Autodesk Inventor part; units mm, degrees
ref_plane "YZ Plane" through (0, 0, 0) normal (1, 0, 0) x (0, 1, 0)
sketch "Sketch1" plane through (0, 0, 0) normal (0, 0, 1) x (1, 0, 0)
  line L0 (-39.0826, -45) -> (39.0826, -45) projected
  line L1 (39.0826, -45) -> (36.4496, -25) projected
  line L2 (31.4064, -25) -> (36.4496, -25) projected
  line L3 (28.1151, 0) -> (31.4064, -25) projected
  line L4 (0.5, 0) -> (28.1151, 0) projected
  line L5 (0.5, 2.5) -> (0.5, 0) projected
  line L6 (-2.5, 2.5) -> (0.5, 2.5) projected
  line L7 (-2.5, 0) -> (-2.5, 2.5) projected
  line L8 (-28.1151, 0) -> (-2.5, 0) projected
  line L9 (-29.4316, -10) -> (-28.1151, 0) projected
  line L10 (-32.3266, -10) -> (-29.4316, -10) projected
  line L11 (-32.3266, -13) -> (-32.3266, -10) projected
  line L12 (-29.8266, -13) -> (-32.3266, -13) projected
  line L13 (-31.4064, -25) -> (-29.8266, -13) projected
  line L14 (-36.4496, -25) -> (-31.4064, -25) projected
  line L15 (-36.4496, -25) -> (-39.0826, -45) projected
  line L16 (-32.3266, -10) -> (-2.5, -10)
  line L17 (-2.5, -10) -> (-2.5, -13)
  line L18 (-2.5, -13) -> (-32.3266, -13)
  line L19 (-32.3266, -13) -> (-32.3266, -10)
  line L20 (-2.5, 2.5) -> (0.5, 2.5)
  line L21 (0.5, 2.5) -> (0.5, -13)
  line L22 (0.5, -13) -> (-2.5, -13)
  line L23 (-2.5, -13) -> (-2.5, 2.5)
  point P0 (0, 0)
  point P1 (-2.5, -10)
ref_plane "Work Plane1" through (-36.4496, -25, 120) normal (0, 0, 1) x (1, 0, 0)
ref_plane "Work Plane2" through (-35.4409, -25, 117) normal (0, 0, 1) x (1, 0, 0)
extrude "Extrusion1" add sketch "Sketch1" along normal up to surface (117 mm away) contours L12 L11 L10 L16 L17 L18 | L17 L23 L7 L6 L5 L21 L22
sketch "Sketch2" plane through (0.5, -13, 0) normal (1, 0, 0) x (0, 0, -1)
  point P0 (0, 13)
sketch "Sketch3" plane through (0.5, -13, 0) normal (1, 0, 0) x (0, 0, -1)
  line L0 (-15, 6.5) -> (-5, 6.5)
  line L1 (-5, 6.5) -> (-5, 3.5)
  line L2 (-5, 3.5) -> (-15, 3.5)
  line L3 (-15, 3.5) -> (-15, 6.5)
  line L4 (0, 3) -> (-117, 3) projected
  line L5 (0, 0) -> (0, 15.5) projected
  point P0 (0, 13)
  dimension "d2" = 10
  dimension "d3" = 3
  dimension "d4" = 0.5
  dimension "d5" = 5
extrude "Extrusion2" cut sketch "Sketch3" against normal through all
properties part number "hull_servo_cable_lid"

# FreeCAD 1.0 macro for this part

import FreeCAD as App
import Part
import Sketcher

V = App.Vector

doc = App.newDocument("Part")
params = doc.addObject("Spreadsheet::Sheet", "Params")
for row, (alias, value) in enumerate([
    ("sketch1_width", "3 mm"),
    ("sketch1_height", "15.5 mm"),
    ("pad1_length", "117 mm"),
    ("sketch2_width", "3 mm"),
    ("sketch2_height", "10 mm"),
], start=1):
    params.set(f"A{row}", alias)
    params.set(f"B{row}", "=" + value)
    params.setAlias(f"B{row}", alias)

body = doc.addObject("PartDesign::Body", "Body")

# Sketch on XY plane
sketch1 = doc.addObject("Sketcher::SketchObject", "Sketch")
body.addObject(sketch1)
sketch1.AttachmentSupport = (doc.XY_Plane, [""])
sketch1.MapMode = "FlatFace"
sketch1.addGeometry(Part.LineSegment(V(-32.3, -13, 0), V(0.5, -13, 0)), False)
sketch1.addGeometry(Part.LineSegment(V(0.5, -13, 0), V(0.5, 2.5, 0)), False)
sketch1.addGeometry(Part.LineSegment(V(0.5, 2.5, 0), V(-2.5, 2.5, 0)), False)
sketch1.addGeometry(Part.LineSegment(V(-2.5, 2.5, 0), V(-2.5, -10, 0)), False)
sketch1.addGeometry(Part.LineSegment(V(-2.5, -10, 0), V(-32.3, -10, 0)), False)
sketch1.addGeometry(Part.LineSegment(V(-32.3, -10, 0), V(-32.3, -13, 0)), False)
sketch1.addConstraint(Sketcher.Constraint("Coincident", 0, 2, 1, 1))
sketch1.addConstraint(Sketcher.Constraint("Coincident", 1, 2, 2, 1))
sketch1.addConstraint(Sketcher.Constraint("Coincident", 2, 2, 3, 1))
sketch1.addConstraint(Sketcher.Constraint("Coincident", 3, 2, 4, 1))
sketch1.addConstraint(Sketcher.Constraint("Coincident", 4, 2, 5, 1))
sketch1.addConstraint(Sketcher.Constraint("Coincident", 5, 2, 0, 1))
sketch1.addConstraint(Sketcher.Constraint("Horizontal", 0))
sketch1.addConstraint(Sketcher.Constraint("Vertical", 1))
sketch1.addConstraint(Sketcher.Constraint("Horizontal", 2))
sketch1.addConstraint(Sketcher.Constraint("Vertical", 3))
sketch1.addConstraint(Sketcher.Constraint("Horizontal", 4))
sketch1.addConstraint(Sketcher.Constraint("Vertical", 5))
sketch1.addConstraint(Sketcher.Constraint("Equal", 2, 5))
sketch1.addConstraint(Sketcher.Constraint("DistanceX", 2, 2, 2, 1, 3.0))
sketch1.addConstraint(Sketcher.Constraint("DistanceY", 1, 1, 1, 2, 15.5))
sketch1.addConstraint(Sketcher.Constraint("DistanceY", 0, 2, -1, 1, 13.0))
sketch1.addConstraint(Sketcher.Constraint("DistanceX", -1, 1, 0, 2, 0.5))
sketch1.addConstraint(Sketcher.Constraint("DistanceX", 0, 1, 0, 2, 32.8266))
sketch1.setExpression("Constraints[13]", "Params.sketch1_width")
sketch1.setExpression("Constraints[14]", "Params.sketch1_height")
pad1 = doc.addObject("PartDesign::Pad", "Pad")
body.addObject(pad1)
pad1.Profile = sketch1
pad1.setExpression("Length", "Params.pad1_length")

# Sketch on YZ plane
sketch2 = doc.addObject("Sketcher::SketchObject", "Sketch001")
body.addObject(sketch2)
sketch2.AttachmentSupport = (doc.YZ_Plane, [""])
sketch2.MapMode = "FlatFace"
sketch2.AttachmentOffset = App.Placement(V(0, 0, 0.5), App.Rotation())
sketch2.addGeometry(Part.LineSegment(V(-6.5, 5, 0), V(-6.5, 15, 0)), False)
sketch2.addGeometry(Part.LineSegment(V(-6.5, 15, 0), V(-9.5, 15, 0)), False)
sketch2.addGeometry(Part.LineSegment(V(-9.5, 15, 0), V(-9.5, 5, 0)), False)
sketch2.addGeometry(Part.LineSegment(V(-9.5, 5, 0), V(-6.5, 5, 0)), False)
sketch2.addConstraint(Sketcher.Constraint("Coincident", 0, 2, 1, 1))
sketch2.addConstraint(Sketcher.Constraint("Coincident", 1, 2, 2, 1))
sketch2.addConstraint(Sketcher.Constraint("Coincident", 2, 2, 3, 1))
sketch2.addConstraint(Sketcher.Constraint("Coincident", 3, 2, 0, 1))
sketch2.addConstraint(Sketcher.Constraint("Vertical", 0))
sketch2.addConstraint(Sketcher.Constraint("Horizontal", 1))
sketch2.addConstraint(Sketcher.Constraint("Vertical", 2))
sketch2.addConstraint(Sketcher.Constraint("Horizontal", 3))
sketch2.addConstraint(Sketcher.Constraint("DistanceX", 1, 2, 1, 1, 3.0))
sketch2.addConstraint(Sketcher.Constraint("DistanceY", 0, 1, 0, 2, 10.0))
sketch2.addConstraint(Sketcher.Constraint("DistanceY", -1, 1, 2, 2, 5.0))
sketch2.addConstraint(Sketcher.Constraint("DistanceX", 0, 2, -1, 1, 6.5))
sketch2.setExpression("Constraints[8]", "Params.sketch2_width")
sketch2.setExpression("Constraints[9]", "Params.sketch2_height")
pocket1 = doc.addObject("PartDesign::Pocket", "Pocket")
body.addObject(pocket1)
pocket1.Profile = sketch2
pocket1.Type = "ThroughAll"

doc.recompute()
